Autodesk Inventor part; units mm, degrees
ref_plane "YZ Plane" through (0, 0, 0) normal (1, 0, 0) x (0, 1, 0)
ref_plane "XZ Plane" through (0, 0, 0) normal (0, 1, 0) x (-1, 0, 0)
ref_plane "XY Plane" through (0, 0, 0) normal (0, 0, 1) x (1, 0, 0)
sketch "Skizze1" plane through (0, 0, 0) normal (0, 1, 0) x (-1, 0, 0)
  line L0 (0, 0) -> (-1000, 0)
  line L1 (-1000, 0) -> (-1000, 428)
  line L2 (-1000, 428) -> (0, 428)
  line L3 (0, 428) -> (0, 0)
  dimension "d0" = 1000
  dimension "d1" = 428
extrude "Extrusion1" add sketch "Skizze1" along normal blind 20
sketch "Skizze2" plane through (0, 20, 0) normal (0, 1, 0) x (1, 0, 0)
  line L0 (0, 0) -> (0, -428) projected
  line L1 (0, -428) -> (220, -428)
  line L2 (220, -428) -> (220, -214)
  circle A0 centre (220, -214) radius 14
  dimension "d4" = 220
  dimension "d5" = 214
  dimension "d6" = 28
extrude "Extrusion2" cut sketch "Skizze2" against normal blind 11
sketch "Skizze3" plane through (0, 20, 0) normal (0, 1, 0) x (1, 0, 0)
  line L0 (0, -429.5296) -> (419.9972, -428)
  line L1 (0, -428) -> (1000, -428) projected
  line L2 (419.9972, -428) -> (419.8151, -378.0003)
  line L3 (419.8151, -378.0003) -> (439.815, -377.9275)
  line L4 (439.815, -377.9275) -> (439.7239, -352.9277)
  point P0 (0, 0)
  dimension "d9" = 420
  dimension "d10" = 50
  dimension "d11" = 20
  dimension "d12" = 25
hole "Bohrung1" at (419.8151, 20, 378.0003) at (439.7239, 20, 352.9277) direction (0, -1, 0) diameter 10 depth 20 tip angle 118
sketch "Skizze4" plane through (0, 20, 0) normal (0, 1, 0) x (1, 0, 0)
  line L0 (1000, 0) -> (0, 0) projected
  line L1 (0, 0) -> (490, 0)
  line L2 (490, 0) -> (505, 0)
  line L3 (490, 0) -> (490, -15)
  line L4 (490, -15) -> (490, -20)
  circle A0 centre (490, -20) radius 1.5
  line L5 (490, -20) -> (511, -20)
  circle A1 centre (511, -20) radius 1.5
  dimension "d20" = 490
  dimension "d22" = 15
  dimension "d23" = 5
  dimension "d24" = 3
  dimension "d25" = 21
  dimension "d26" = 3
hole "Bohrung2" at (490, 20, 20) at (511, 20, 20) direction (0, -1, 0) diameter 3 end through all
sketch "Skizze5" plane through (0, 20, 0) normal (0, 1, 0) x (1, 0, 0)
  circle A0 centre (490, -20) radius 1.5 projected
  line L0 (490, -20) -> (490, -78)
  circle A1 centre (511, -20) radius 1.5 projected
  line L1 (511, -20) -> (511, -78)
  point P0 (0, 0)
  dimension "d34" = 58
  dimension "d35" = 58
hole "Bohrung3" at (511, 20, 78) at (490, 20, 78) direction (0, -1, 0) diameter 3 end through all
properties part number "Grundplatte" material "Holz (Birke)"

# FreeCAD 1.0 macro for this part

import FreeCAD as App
import Part
import Sketcher
from FreeCAD import Vector
Q = App.Units.Quantity


def add_polygon(sketch, points):
    """Adds a closed chain of lines whose ends are joined by coincident constraints."""
    first, n = sketch.GeometryCount, len(points)
    for a, b in zip(points, points[1:] + points[:1]):
        sketch.addGeometry(Part.LineSegment(App.Vector(*a, 0), App.Vector(*b, 0)), False)
    for i in range(n):
        sketch.addConstraint(Sketcher.Constraint("Coincident", first + i, 2, first + (i + 1) % n, 1))

doc = App.newDocument("Part")
body = doc.addObject("PartDesign::Body", "Body")

# Sketch on XZ plane
sketch1 = doc.addObject("Sketcher::SketchObject", "Sketch")
body.addObject(sketch1)
sketch1.AttachmentSupport = (doc.XZ_Plane, [""])
sketch1.MapMode = "FlatFace"
add_polygon(sketch1, [(1000, 0), (0, 0), (0, 428), (1000, 428)])  # lines 0-3
sketch1.addConstraint(Sketcher.Constraint("Horizontal", 0))
sketch1.addConstraint(Sketcher.Constraint("Vertical", 1))
sketch1.addConstraint(Sketcher.Constraint("Horizontal", 2))
sketch1.addConstraint(Sketcher.Constraint("Vertical", 3))
sketch1.addConstraint(Sketcher.Constraint("Coincident", 0, 2, -1, 1))
sketch1.addConstraint(Sketcher.Constraint("DistanceX", 0, 2, 0, 1, Q("1000 mm")))
sketch1.addConstraint(Sketcher.Constraint("DistanceY", 1, 1, 1, 2, Q("428 mm")))
pad1 = doc.addObject("PartDesign::Pad", "Pad")
body.addObject(pad1)
pad1.Profile = sketch1
pad1.Length = 20
pad1.Reversed = True

# Sketch on XZ plane
sketch2 = doc.addObject("Sketcher::SketchObject", "Sketch001")
body.addObject(sketch2)
sketch2.AttachmentSupport = (doc.XZ_Plane, [""])
sketch2.MapMode = "FlatFace"
sketch2.AttachmentOffset = App.Placement(Vector(0, 0, -20), App.Rotation())
sketch2.addGeometry(Part.Circle(Vector(220, 214, 0), Vector(0, 0, 1), 14), False)
sketch2.addConstraint(Sketcher.Constraint("Diameter", 0, Q("28 mm")))
sketch2.addConstraint(Sketcher.Constraint("DistanceX", -1, 1, 0, 3, Q("220 mm")))
sketch2.addConstraint(Sketcher.Constraint("DistanceY", -1, 1, 0, 3, Q("214 mm")))
pocket1 = doc.addObject("PartDesign::Pocket", "Pocket")
body.addObject(pocket1)
pocket1.Profile = sketch2
pocket1.Length = 11
pocket1.Reversed = True

# Sketch on XZ plane
sketch3 = doc.addObject("Sketcher::SketchObject", "Sketch002")
body.addObject(sketch3)
sketch3.AttachmentSupport = (doc.XZ_Plane, [""])
sketch3.MapMode = "FlatFace"
sketch3.AttachmentOffset = App.Placement(Vector(0, 0, -20), App.Rotation())
sketch3.addGeometry(Part.Circle(Vector(419.8151, 378.0003, 0), Vector(0, 0, 1), 5), False)
sketch3.addGeometry(Part.Circle(Vector(439.7239, 352.9277, 0), Vector(0, 0, 1), 5), False)
sketch3.addConstraint(Sketcher.Constraint("Equal", 0, 1))
sketch3.addConstraint(Sketcher.Constraint("Diameter", 0, Q("10 mm")))
sketch3.addConstraint(Sketcher.Constraint("DistanceX", -1, 1, 0, 3, Q("419.815 mm")))
sketch3.addConstraint(Sketcher.Constraint("DistanceX", -1, 1, 1, 3, Q("439.724 mm")))
sketch3.addConstraint(Sketcher.Constraint("DistanceY", -1, 1, 0, 3, Q("378.0003 mm")))
sketch3.addConstraint(Sketcher.Constraint("DistanceY", -1, 1, 1, 3, Q("352.9277 mm")))
doc.recompute()
hole = doc.addObject("PartDesign::Hole", "Hole")
body.addObject(hole)
hole.Profile = sketch3
hole.ThreadType = "None"
hole.Diameter = 10
hole.DepthType = "Dimension"
hole.Depth = 20
hole.DrillPoint = "Angled"
hole.DrillPointAngle = 118
hole.Reversed = True

# Sketch on XZ plane
sketch4 = doc.addObject("Sketcher::SketchObject", "Sketch003")
body.addObject(sketch4)
sketch4.AttachmentSupport = (doc.XZ_Plane, [""])
sketch4.MapMode = "FlatFace"
sketch4.AttachmentOffset = App.Placement(Vector(0, 0, -20), App.Rotation())
sketch4.addGeometry(Part.Circle(Vector(490, 20, 0), Vector(0, 0, 1), 1.5), False)
sketch4.addGeometry(Part.Circle(Vector(511, 20, 0), Vector(0, 0, 1), 1.5), False)
sketch4.addConstraint(Sketcher.Constraint("Equal", 0, 1))
sketch4.addConstraint(Sketcher.Constraint("Horizontal", 0, 3, 1, 3))
sketch4.addConstraint(Sketcher.Constraint("Diameter", 0, Q("3 mm")))
sketch4.addConstraint(Sketcher.Constraint("DistanceX", -1, 1, 0, 3, Q("490 mm")))
sketch4.addConstraint(Sketcher.Constraint("DistanceY", -1, 1, 0, 3, Q("20 mm")))
sketch4.addConstraint(Sketcher.Constraint("DistanceX", -1, 1, 1, 3, Q("511 mm")))
doc.recompute()
hole2 = doc.addObject("PartDesign::Hole", "Hole001")
body.addObject(hole2)
hole2.Profile = sketch4
hole2.ThreadType = "None"
hole2.Diameter = 3
hole2.DepthType = "ThroughAll"
hole2.Reversed = True

# Sketch on XZ plane
sketch5 = doc.addObject("Sketcher::SketchObject", "Sketch004")
body.addObject(sketch5)
sketch5.AttachmentSupport = (doc.XZ_Plane, [""])
sketch5.MapMode = "FlatFace"
sketch5.AttachmentOffset = App.Placement(Vector(0, 0, -20), App.Rotation())
sketch5.addGeometry(Part.Circle(Vector(511, 78, 0), Vector(0, 0, 1), 1.5), False)
sketch5.addGeometry(Part.Circle(Vector(490, 78, 0), Vector(0, 0, 1), 1.5), False)
sketch5.addConstraint(Sketcher.Constraint("Equal", 0, 1))
sketch5.addConstraint(Sketcher.Constraint("Horizontal", 0, 3, 1, 3))
sketch5.addConstraint(Sketcher.Constraint("Diameter", 0, Q("3 mm")))
sketch5.addConstraint(Sketcher.Constraint("DistanceX", -1, 1, 0, 3, Q("511 mm")))
sketch5.addConstraint(Sketcher.Constraint("DistanceY", -1, 1, 0, 3, Q("78 mm")))
sketch5.addConstraint(Sketcher.Constraint("DistanceX", -1, 1, 1, 3, Q("490 mm")))
doc.recompute()
hole3 = doc.addObject("PartDesign::Hole", "Hole002")
body.addObject(hole3)
hole3.Profile = sketch5
hole3.ThreadType = "None"
hole3.Diameter = 3
hole3.DepthType = "ThroughAll"
hole3.Reversed = True

doc.recompute()
